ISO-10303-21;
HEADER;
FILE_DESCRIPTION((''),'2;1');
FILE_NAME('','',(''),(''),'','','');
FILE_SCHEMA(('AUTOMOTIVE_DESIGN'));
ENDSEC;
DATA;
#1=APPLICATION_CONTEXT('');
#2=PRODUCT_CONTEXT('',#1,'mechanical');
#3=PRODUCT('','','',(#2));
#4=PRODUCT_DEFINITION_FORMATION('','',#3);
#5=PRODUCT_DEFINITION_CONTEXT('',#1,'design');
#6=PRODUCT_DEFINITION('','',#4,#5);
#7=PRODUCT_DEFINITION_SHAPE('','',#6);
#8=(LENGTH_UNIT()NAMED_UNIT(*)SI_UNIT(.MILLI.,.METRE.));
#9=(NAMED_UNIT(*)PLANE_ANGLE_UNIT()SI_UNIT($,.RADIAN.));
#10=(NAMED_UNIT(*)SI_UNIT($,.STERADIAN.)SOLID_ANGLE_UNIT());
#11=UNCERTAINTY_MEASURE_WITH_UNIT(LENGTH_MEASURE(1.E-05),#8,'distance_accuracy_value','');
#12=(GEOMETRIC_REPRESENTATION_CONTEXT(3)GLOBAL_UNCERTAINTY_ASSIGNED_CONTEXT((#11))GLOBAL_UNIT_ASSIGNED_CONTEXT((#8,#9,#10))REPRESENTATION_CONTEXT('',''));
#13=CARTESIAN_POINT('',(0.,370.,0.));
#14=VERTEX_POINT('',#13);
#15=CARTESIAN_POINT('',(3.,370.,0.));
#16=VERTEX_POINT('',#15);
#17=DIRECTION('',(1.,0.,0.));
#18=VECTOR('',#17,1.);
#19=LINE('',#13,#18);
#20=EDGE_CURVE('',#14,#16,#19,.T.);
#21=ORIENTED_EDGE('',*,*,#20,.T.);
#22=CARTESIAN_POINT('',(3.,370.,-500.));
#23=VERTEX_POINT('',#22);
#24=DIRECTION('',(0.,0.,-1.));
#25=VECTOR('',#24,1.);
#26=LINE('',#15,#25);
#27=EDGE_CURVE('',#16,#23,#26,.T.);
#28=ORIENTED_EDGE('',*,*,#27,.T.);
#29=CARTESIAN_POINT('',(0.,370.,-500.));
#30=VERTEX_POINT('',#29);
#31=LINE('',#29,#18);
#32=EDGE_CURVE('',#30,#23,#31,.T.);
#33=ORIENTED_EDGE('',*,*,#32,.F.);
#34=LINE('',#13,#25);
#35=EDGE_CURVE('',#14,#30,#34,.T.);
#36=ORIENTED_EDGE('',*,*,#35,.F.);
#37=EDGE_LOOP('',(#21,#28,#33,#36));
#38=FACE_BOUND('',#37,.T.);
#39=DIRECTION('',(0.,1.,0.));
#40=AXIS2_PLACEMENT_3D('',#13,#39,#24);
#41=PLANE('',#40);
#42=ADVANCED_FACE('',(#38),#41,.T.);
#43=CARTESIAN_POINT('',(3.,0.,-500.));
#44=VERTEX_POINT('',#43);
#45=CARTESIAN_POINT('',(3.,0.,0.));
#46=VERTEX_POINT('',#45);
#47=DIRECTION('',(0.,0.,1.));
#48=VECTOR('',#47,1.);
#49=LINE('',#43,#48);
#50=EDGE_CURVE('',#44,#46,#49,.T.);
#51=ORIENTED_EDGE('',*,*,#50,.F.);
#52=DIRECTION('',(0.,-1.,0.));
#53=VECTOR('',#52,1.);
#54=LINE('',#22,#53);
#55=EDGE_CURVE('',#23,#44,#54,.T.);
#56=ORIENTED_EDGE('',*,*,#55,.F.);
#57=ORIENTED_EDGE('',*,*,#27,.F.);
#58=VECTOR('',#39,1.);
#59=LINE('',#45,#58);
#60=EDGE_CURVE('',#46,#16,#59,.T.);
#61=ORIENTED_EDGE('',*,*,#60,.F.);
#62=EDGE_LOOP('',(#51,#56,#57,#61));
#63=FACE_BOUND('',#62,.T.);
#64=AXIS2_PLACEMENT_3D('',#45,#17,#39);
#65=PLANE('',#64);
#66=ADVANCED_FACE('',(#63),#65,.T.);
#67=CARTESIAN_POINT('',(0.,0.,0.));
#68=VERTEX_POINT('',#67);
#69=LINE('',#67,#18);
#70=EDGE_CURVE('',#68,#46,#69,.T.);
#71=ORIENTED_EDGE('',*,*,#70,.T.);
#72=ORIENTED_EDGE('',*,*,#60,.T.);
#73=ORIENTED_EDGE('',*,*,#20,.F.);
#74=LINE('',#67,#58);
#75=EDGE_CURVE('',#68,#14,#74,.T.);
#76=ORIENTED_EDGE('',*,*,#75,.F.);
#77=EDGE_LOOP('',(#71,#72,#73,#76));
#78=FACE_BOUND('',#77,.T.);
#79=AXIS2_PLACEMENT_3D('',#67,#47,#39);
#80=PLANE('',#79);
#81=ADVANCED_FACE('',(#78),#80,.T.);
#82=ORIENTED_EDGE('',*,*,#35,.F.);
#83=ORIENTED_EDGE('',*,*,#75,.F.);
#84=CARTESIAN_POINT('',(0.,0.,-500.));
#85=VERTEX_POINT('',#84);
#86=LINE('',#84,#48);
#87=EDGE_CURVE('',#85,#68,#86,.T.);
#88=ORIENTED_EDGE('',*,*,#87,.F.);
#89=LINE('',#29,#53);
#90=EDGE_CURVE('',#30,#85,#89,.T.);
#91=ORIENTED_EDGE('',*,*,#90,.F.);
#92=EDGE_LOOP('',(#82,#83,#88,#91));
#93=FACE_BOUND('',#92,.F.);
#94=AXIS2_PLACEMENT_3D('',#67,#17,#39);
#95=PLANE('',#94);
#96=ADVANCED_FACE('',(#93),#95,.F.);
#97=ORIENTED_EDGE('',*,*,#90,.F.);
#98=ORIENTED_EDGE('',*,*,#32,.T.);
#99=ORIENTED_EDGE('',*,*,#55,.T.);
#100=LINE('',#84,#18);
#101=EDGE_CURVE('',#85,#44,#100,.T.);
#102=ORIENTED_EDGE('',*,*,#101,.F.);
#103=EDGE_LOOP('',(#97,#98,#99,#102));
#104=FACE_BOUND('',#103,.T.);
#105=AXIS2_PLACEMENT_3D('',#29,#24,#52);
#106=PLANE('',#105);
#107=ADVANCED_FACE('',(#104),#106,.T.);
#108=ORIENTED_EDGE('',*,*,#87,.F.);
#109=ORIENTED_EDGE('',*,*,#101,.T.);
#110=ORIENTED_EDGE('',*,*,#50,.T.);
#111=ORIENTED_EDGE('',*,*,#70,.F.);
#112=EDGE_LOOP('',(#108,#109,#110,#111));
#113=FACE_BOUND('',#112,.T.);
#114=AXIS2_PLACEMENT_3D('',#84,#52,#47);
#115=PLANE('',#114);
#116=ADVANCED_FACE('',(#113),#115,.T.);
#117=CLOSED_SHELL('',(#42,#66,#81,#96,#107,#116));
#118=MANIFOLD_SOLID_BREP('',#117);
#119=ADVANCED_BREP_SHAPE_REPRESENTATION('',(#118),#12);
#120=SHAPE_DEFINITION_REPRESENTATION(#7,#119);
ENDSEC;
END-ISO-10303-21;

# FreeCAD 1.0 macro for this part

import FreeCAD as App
import Part
import Sketcher

doc = App.newDocument("Part")
body = doc.addObject("PartDesign::Body", "Body")

# Sketch on YZ plane
sketch1 = body.newObject("Sketcher::SketchObject", "Sketch")
sketch1.AttachmentSupport = (doc.getObject("YZ_Plane"), [""])
sketch1.MapMode = "FlatFace"
sketch1.addGeometry([
    Part.LineSegment(App.Vector(370, 0, 0), App.Vector(0, 0, 0)),
    Part.LineSegment(App.Vector(0, 0, 0), App.Vector(0, -500, 0)),
    Part.LineSegment(App.Vector(0, -500, 0), App.Vector(370, -500, 0)),
    Part.LineSegment(App.Vector(370, -500, 0), App.Vector(370, 0, 0)),
], False)
sketch1.addConstraint([
    Sketcher.Constraint("Coincident", 0, 2, 1, 1),
    Sketcher.Constraint("Coincident", 1, 2, 2, 1),
    Sketcher.Constraint("Coincident", 2, 2, 3, 1),
    Sketcher.Constraint("Coincident", 3, 2, 0, 1),
    Sketcher.Constraint("Horizontal", 0),
    Sketcher.Constraint("Vertical", 1),
    Sketcher.Constraint("Horizontal", 2),
    Sketcher.Constraint("Vertical", 3),
    Sketcher.Constraint("Coincident", 0, 2, -1, 1),
    Sketcher.Constraint("DistanceX", 0, 2, 0, 1, 370.0),
    Sketcher.Constraint("DistanceY", 1, 2, 1, 1, 500.0),
])
pad1 = body.newObject("PartDesign::Pad", "Pad")
pad1.Profile = sketch1
pad1.Length = 3

doc.recompute()
